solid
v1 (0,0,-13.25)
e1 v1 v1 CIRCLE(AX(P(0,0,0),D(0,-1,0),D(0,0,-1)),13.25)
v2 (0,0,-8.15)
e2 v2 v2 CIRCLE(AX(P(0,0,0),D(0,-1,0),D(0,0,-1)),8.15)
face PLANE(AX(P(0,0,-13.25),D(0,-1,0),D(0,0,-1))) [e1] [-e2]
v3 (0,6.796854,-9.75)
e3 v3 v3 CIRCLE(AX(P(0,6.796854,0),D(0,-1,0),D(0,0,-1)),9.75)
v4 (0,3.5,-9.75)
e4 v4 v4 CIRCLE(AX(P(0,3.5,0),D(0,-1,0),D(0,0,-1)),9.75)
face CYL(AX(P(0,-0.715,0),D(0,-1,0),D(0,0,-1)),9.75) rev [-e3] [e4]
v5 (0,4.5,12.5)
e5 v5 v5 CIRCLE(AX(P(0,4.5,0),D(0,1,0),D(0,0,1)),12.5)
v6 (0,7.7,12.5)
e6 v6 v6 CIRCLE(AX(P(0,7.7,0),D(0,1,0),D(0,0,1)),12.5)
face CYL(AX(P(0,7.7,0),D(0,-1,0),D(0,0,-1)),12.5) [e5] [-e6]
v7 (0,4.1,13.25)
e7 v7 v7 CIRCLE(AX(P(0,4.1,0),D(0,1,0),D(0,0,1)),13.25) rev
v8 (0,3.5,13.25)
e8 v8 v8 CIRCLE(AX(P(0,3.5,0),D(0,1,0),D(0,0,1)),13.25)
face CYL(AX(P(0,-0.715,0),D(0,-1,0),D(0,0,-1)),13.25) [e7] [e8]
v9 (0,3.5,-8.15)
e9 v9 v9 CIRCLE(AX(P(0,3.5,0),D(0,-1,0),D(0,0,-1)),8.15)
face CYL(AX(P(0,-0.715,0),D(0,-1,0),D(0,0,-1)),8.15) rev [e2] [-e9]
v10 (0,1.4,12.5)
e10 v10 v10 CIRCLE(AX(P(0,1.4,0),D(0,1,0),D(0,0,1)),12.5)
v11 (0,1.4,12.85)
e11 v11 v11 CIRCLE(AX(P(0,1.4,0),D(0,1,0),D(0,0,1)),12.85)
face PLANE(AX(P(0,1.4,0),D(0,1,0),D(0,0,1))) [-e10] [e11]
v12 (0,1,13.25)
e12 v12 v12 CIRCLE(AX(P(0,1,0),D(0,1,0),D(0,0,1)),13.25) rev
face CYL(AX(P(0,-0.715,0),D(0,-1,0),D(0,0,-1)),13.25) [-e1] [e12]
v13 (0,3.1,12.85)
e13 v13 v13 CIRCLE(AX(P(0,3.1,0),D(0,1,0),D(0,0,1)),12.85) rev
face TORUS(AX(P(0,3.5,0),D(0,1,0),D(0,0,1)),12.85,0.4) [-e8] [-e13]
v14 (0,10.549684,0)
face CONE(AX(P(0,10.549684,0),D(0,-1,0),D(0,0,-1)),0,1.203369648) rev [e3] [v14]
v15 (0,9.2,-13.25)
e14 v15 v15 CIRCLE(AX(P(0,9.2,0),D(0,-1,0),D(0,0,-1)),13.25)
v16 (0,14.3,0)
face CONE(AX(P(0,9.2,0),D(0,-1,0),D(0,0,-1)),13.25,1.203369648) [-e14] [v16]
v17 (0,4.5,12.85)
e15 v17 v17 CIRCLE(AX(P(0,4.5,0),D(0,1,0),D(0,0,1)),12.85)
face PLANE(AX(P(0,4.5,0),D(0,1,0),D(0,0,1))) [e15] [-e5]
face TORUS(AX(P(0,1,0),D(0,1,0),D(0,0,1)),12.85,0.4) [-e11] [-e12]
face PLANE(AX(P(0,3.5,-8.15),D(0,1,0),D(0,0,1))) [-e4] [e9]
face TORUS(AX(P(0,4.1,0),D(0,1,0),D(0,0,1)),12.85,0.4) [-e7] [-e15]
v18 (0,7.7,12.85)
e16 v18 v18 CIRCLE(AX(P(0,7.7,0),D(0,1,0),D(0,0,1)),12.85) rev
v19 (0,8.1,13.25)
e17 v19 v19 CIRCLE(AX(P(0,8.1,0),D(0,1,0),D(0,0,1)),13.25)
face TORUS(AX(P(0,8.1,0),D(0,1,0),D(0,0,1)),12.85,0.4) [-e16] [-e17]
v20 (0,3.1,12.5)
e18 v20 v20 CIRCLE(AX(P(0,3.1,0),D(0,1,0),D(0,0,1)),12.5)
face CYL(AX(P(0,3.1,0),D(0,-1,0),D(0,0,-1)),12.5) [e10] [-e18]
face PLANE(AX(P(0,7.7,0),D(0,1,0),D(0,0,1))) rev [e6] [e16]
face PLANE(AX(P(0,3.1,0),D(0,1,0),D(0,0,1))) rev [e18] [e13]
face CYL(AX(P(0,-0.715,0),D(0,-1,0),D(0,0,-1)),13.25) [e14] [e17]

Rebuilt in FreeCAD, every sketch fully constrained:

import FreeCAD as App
import Part
import Sketcher

V = App.Vector


def edges_at(feature, points):
    """Names of the edges that pass closest to the given points."""
    edges = feature.Shape.Edges
    near = lambda p: min(range(len(edges)), key=lambda i: edges[i].distToShape(Part.Vertex(*p))[0])
    return sorted({f"Edge{near(p) + 1}" for p in points})


def add_polygon(sketch, points):
    """Adds a closed chain of lines whose ends are joined by coincident constraints."""
    first, n = sketch.GeometryCount, len(points)
    for a, b in zip(points, points[1:] + points[:1]):
        sketch.addGeometry(Part.LineSegment(App.Vector(*a, 0), App.Vector(*b, 0)), False)
    for i in range(n):
        sketch.addConstraint(Sketcher.Constraint("Coincident", first + i, 2, first + (i + 1) % n, 1))

doc = App.newDocument("Part")
body = doc.addObject("PartDesign::Body", "Body")

# Sketch on YZ plane
sketch1 = body.newObject("Sketcher::SketchObject", "Sketch")
sketch1.AttachmentSupport = (doc.getObject("YZ_Plane"), [""])
sketch1.MapMode = "FlatFace"
add_polygon(sketch1, [(9.2, -13.2), (14.3, 0), (10.5, 0), (6.8, -9.8), (3.5, -9.8), (3.5, -8.2), (0, -8.2), (0, -13.2)])  # lines 0-7
sketch1.addConstraint([
    Sketcher.Constraint("Horizontal", 1),
    Sketcher.Constraint("Horizontal", 3),
    Sketcher.Constraint("Vertical", 4),
    Sketcher.Constraint("Horizontal", 5),
    Sketcher.Constraint("Vertical", 6),
    Sketcher.Constraint("Horizontal", 7),
    Sketcher.Constraint("PointOnObject", 0, 2, -1),
    Sketcher.Constraint("PointOnObject", 5, 2, -2),
    Sketcher.Constraint("Parallel", 0, 2),
    Sketcher.Constraint("DistanceX", 5, 2, 5, 1, 3.5),
    Sketcher.Constraint("DistanceX", 7, 1, 7, 2, 9.2),
    Sketcher.Constraint("DistanceY", 4, 1, 4, 2, 1.6),
    Sketcher.Constraint("DistanceY", 6, 2, 6, 1, 5.1),
    Sketcher.Constraint("DistanceX", -1, 1, 0, 2, 14.3),
    Sketcher.Constraint("DistanceY", 2, 2, -1, 1, 9.75),
    Sketcher.Constraint("DistanceX", 1, 2, 1, 1, 3.750316),
])
revolution = body.newObject("PartDesign::Revolution", "Revolution")
revolution.Profile = sketch1
revolution.ReferenceAxis = (sketch1, ["H_Axis"])
revolution.Angle = 360

# Sketch on XZ plane
sketch2 = body.newObject("Sketcher::SketchObject", "Sketch001")
sketch2.AttachmentSupport = (doc.getObject("XZ_Plane"), [""])
sketch2.MapMode = "FlatFace"
sketch2.AttachmentOffset = App.Placement(V(0, 0, -1.4), App.Rotation())
sketch2.addGeometry([
    Part.Circle(V(0, 0, 0), V(0, 0, 1), 13),
    Part.Circle(V(0, 0, 0), V(0, 0, 1), 12),
], False)
sketch2.addConstraint([
    Sketcher.Constraint("Coincident", 0, 3, -1, 1),
    Sketcher.Constraint("Coincident", 1, 3, -1, 1),
    Sketcher.Constraint("Diameter", 1, 25.0),
    Sketcher.Constraint("Diameter", 0, 26.5),
])
pocket1 = body.newObject("PartDesign::Pocket", "Pocket")
pocket1.Profile = sketch2
pocket1.Length = 1.7

# Sketch on XZ plane
sketch3 = body.newObject("Sketcher::SketchObject", "Sketch002")
sketch3.AttachmentSupport = (doc.getObject("XZ_Plane"), [""])
sketch3.MapMode = "FlatFace"
sketch3.AttachmentOffset = App.Placement(V(0, 0, -4.5), App.Rotation())
sketch3.addGeometry([
    Part.Circle(V(0, 0, 0), V(0, 0, 1), 13),
    Part.Circle(V(0, 0, 0), V(0, 0, 1), 12),
], False)
sketch3.addConstraint([
    Sketcher.Constraint("Coincident", 0, 3, -1, 1),
    Sketcher.Constraint("Coincident", 1, 3, -1, 1),
    Sketcher.Constraint("Diameter", 1, 25.0),
    Sketcher.Constraint("Diameter", 0, 26.5),
])
pocket2 = body.newObject("PartDesign::Pocket", "Pocket001")
pocket2.Profile = sketch3
pocket2.Length = 3.2
doc.recompute()

fillet = body.newObject("PartDesign::Fillet", "Fillet")
fillet.Base = (pocket2, edges_at(pocket2, [
    (0, 3.1, 13.25),
    (0, 1.4, 13.25),
    (0, 7.7, 13.25),
    (0, 4.5, 13.25),
]))
fillet.Radius = 0.4

doc.recompute()
